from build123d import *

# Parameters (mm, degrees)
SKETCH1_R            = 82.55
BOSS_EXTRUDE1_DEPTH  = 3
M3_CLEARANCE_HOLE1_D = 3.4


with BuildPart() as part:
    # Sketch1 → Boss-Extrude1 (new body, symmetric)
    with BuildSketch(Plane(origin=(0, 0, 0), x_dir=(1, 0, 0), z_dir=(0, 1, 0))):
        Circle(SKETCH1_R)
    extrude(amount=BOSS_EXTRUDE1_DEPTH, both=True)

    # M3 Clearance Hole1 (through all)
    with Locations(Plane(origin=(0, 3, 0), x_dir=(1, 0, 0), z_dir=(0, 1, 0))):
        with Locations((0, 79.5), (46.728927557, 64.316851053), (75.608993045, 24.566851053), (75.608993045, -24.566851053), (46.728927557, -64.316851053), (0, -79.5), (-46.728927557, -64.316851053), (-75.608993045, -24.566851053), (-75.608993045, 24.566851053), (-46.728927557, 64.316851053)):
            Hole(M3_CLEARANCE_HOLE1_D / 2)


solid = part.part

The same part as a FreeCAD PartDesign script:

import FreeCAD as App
import Part
import Sketcher

V = App.Vector
Q = App.Units.Quantity

doc = App.newDocument("Part")
body = doc.addObject("PartDesign::Body", "Body")

# Sketch on XZ plane
sketch1 = body.newObject("Sketcher::SketchObject", "Sketch")
sketch1.AttachmentSupport = (doc.getObject("XZ_Plane"), [""])
sketch1.MapMode = "FlatFace"
sketch1.addGeometry(Part.Circle(V(0, 0, 0), V(0, 0, 1), 83), False)
sketch1.addConstraint([
    Sketcher.Constraint("Coincident", 0, 3, -1, 1),
    Sketcher.Constraint("Diameter", 0, Q("165.1 mm")),
])
pad1 = body.newObject("PartDesign::Pad", "Pad")
pad1.Profile = sketch1
pad1.Length = 6
pad1.Midplane = True

# Sketch on XZ plane
sketch2 = body.newObject("Sketcher::SketchObject", "Sketch001")
sketch2.AttachmentSupport = (doc.getObject("XZ_Plane"), [""])
sketch2.MapMode = "FlatFace"
sketch2.AttachmentOffset = App.Placement(V(0, 0, -3), App.Rotation())
sketch2.addGeometry([
    Part.Circle(V(0, -79.5, 0), V(0, 0, 1), 1.7),  # 0
    Part.Circle(V(46.7, -64.3, 0), V(0, 0, 1), 1.7),  # 1
    Part.Circle(V(75.6, -24.6, 0), V(0, 0, 1), 1.7),  # 2
    Part.Circle(V(75.6, 24.6, 0), V(0, 0, 1), 1.7),  # 3
    Part.Circle(V(46.7, 64.3, 0), V(0, 0, 1), 1.7),  # 4
    Part.Circle(V(0, 79.5, 0), V(0, 0, 1), 1.7),  # 5
    Part.Circle(V(-46.7, 64.3, 0), V(0, 0, 1), 1.7),  # 6
    Part.Circle(V(-75.6, 24.6, 0), V(0, 0, 1), 1.7),  # 7
    Part.Circle(V(-75.6, -24.6, 0), V(0, 0, 1), 1.7),  # 8
    Part.Circle(V(-46.7, -64.3, 0), V(0, 0, 1), 1.7),  # 9
], False)
sketch2.addConstraint([
    Sketcher.Constraint("Equal", 0, 1),
    Sketcher.Constraint("Equal", 1, 2),
    Sketcher.Constraint("Equal", 2, 3),
    Sketcher.Constraint("Equal", 3, 4),
    Sketcher.Constraint("Equal", 4, 5),
    Sketcher.Constraint("Equal", 5, 6),
    Sketcher.Constraint("Equal", 6, 7),
    Sketcher.Constraint("Equal", 7, 8),
    Sketcher.Constraint("Equal", 8, 9),
    Sketcher.Constraint("Symmetric", 0, 3, 5, 3, -1, 1),
    Sketcher.Constraint("Symmetric", 1, 3, 6, 3, -1, 1),
    Sketcher.Constraint("Symmetric", 2, 3, 7, 3, -1, 1),
    Sketcher.Constraint("Symmetric", 3, 3, 8, 3, -1, 1),
    Sketcher.Constraint("Symmetric", 4, 3, 9, 3, -1, 1),
    Sketcher.Constraint("Symmetric", 4, 3, 6, 3, -2),
    Sketcher.Constraint("Symmetric", 3, 3, 7, 3, -2),
    Sketcher.Constraint("PointOnObject", 0, 3, -2),
    Sketcher.Constraint("Diameter", 0, Q("3.4 mm")),
    Sketcher.Constraint("DistanceY", 0, 3, 5, 3, Q("159 mm")),
    Sketcher.Constraint("DistanceY", 1, 3, 2, 3, Q("39.75 mm")),
    Sketcher.Constraint("DistanceY", 1, 3, -1, 1, Q("64.316851 mm")),
    Sketcher.Constraint("DistanceX", 6, 3, 3, 3, Q("122.337921 mm")),
    Sketcher.Constraint("DistanceX", -1, 1, 1, 3, Q("46.728928 mm")),
])
doc.recompute()
hole = body.newObject("PartDesign::Hole", "Hole")
hole.Profile = sketch2
hole.ThreadType = "None"
hole.Diameter = 3.4
hole.DepthType = "ThroughAll"
hole.Reversed = True

doc.recompute()
